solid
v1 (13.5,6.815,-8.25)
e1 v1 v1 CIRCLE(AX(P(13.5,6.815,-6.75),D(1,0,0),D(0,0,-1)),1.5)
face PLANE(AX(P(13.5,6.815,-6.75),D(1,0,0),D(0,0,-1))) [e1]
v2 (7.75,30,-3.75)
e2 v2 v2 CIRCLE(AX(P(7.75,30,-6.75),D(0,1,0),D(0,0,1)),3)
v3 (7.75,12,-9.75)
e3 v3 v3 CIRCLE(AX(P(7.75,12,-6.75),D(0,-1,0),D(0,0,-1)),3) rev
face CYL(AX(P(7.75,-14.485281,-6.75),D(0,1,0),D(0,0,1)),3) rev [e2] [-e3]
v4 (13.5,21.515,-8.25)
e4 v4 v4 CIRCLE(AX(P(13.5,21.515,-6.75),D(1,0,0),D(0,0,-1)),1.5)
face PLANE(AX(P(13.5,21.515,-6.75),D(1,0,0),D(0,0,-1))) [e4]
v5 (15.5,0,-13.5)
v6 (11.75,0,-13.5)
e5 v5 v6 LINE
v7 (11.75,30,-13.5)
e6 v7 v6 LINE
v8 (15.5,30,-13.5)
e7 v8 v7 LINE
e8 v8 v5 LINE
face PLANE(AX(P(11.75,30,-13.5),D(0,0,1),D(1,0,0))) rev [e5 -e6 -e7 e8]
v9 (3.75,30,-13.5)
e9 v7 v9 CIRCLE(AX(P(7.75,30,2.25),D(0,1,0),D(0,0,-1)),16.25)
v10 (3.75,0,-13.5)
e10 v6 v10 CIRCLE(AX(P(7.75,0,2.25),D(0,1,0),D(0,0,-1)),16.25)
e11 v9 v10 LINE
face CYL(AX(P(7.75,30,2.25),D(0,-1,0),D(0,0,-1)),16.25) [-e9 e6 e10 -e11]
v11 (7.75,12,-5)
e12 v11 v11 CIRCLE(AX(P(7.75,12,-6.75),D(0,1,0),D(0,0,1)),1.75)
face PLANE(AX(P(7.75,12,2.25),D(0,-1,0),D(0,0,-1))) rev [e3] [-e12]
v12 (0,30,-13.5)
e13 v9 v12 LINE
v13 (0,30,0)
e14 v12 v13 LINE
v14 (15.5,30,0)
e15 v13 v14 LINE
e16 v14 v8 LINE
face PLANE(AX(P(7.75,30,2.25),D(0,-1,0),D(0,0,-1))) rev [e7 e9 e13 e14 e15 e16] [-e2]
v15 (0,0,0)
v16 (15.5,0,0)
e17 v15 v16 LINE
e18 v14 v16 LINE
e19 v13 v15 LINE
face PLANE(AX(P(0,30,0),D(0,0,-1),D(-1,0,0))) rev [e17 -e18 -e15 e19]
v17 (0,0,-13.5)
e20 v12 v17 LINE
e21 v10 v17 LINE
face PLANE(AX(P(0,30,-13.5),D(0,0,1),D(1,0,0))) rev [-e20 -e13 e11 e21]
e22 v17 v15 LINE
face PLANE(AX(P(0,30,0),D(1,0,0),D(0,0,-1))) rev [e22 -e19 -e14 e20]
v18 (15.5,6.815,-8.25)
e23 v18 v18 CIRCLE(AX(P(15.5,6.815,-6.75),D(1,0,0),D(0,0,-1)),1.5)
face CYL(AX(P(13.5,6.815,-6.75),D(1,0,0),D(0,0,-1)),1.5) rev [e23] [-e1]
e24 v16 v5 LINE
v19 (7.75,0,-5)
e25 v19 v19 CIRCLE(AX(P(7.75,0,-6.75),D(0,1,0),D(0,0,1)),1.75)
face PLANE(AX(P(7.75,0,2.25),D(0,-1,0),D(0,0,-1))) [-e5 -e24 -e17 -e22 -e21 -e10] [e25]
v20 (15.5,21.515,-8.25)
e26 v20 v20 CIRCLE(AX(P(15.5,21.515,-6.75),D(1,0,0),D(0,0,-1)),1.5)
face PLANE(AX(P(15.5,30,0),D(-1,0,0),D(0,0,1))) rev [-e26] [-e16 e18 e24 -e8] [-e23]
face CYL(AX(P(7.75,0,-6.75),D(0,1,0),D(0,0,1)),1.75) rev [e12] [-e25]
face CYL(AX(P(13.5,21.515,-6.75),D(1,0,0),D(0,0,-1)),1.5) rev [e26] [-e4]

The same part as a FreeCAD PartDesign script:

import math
import FreeCAD as App
import Part
import Sketcher

doc = App.newDocument("Part")
body = doc.addObject("PartDesign::Body", "Body")

sketch1 = body.newObject("Sketcher::SketchObject", "Sketch")
sketch1.AttachmentSupport = (doc.getObject("XZ_Plane"), [""])
sketch1.MapMode = "FlatFace"
sketch1.addGeometry([
    Part.LineSegment(App.Vector(0, 0, 0), App.Vector(15.5, 0, 0)),
    Part.LineSegment(App.Vector(15.5, 0, 0), App.Vector(15.5, -13.5, 0)),
    Part.LineSegment(App.Vector(15.5, -13.5, 0), App.Vector(11.75, -13.5, 0)),
    Part.ArcOfCircle(Part.Circle(App.Vector(7.75, 2.25, 0), App.Vector(0, 0, 1), 16.25), math.radians(-104.250033), math.radians(-75.749967)),
    Part.LineSegment(App.Vector(3.75, -13.5, 0), App.Vector(0, -13.5, 0)),
    Part.LineSegment(App.Vector(0, -13.5, 0), App.Vector(0, 0, 0)),
], False)
sketch1.addConstraint([
    Sketcher.Constraint("Coincident", 0, 2, 1, 1),
    Sketcher.Constraint("Coincident", 1, 2, 2, 1),
    Sketcher.Constraint("Coincident", 2, 2, 3, 2),
    Sketcher.Constraint("Coincident", 3, 1, 4, 1),
    Sketcher.Constraint("Coincident", 4, 2, 5, 1),
    Sketcher.Constraint("Coincident", 5, 2, 0, 1),
    Sketcher.Constraint("Horizontal", 0),
    Sketcher.Constraint("Vertical", 1),
    Sketcher.Constraint("Horizontal", 2),
    Sketcher.Constraint("Horizontal", 4),
    Sketcher.Constraint("Vertical", 5),
    Sketcher.Constraint("Coincident", 5, 2, -1, 1),
    Sketcher.Constraint("Horizontal", 2, 2, 3, 1),
    Sketcher.Constraint("Equal", 2, 4),
    Sketcher.Constraint("Radius", 3, 16.25),
    Sketcher.Constraint("DistanceX", 0, 1, 0, 2, 15.5),
    Sketcher.Constraint("DistanceY", 1, 2, 1, 1, 13.5),
    Sketcher.Constraint("DistanceX", 3, 3, 2, 2, 4.0),
])
pad1 = body.newObject("PartDesign::Pad", "Pad")
pad1.Profile = sketch1
pad1.Length = 30
pad1.Reversed = True

sketch2 = body.newObject("Sketcher::SketchObject", "Sketch001")
sketch2.AttachmentSupport = (doc.getObject("XZ_Plane"), [""])
sketch2.MapMode = "FlatFace"
sketch2.AttachmentOffset = App.Placement(App.Vector(0, 0, -30), App.Rotation())
sketch2.addGeometry(Part.Circle(App.Vector(7.75, -6.75, 0), App.Vector(0, 0, 1), 3), False)
sketch2.addConstraint([
    Sketcher.Constraint("Diameter", 0, 6.0),
    Sketcher.Constraint("DistanceX", -1, 1, 0, 3, 7.75),
    Sketcher.Constraint("DistanceY", 0, 3, -1, 1, 6.75),
])
pocket1 = body.newObject("PartDesign::Pocket", "Pocket")
pocket1.Profile = sketch2
pocket1.Length = 18
pocket1.Reversed = True

sketch3 = body.newObject("Sketcher::SketchObject", "Sketch002")
sketch3.AttachmentSupport = (doc.getObject("XZ_Plane"), [""])
sketch3.MapMode = "FlatFace"
sketch3.AttachmentOffset = App.Placement(App.Vector(0, 0, -12), App.Rotation())
sketch3.addGeometry(Part.Circle(App.Vector(7.75, -6.75, 0), App.Vector(0, 0, 1), 1.75), False)
sketch3.addConstraint([
    Sketcher.Constraint("Diameter", 0, 3.5),
    Sketcher.Constraint("DistanceX", -1, 1, 0, 3, 7.75),
    Sketcher.Constraint("DistanceY", 0, 3, -1, 1, 6.75),
])
pocket2 = body.newObject("PartDesign::Pocket", "Pocket001")
pocket2.Profile = sketch3
pocket2.Type = "ThroughAll"
pocket2.Reversed = True

sketch4 = body.newObject("Sketcher::SketchObject", "Sketch003")
sketch4.AttachmentSupport = (doc.getObject("YZ_Plane"), [""])
sketch4.MapMode = "FlatFace"
sketch4.AttachmentOffset = App.Placement(App.Vector(0, 0, 15.5), App.Rotation())
sketch4.addGeometry([
    Part.Circle(App.Vector(21.515, -6.75, 0), App.Vector(0, 0, 1), 1.5),
    Part.Circle(App.Vector(6.815, -6.75, 0), App.Vector(0, 0, 1), 1.5),
], False)
sketch4.addConstraint([
    Sketcher.Constraint("Equal", 0, 1),
    Sketcher.Constraint("Horizontal", 0, 3, 1, 3),
    Sketcher.Constraint("Diameter", 0, 3.0),
    Sketcher.Constraint("DistanceX", 1, 3, 0, 3, 14.7),
    Sketcher.Constraint("DistanceY", 0, 3, -1, 1, 6.75),
    Sketcher.Constraint("DistanceX", -1, 1, 0, 3, 21.515),
])
pocket3 = body.newObject("PartDesign::Pocket", "Pocket002")
pocket3.Profile = sketch4
pocket3.Length = 2

doc.recompute()
